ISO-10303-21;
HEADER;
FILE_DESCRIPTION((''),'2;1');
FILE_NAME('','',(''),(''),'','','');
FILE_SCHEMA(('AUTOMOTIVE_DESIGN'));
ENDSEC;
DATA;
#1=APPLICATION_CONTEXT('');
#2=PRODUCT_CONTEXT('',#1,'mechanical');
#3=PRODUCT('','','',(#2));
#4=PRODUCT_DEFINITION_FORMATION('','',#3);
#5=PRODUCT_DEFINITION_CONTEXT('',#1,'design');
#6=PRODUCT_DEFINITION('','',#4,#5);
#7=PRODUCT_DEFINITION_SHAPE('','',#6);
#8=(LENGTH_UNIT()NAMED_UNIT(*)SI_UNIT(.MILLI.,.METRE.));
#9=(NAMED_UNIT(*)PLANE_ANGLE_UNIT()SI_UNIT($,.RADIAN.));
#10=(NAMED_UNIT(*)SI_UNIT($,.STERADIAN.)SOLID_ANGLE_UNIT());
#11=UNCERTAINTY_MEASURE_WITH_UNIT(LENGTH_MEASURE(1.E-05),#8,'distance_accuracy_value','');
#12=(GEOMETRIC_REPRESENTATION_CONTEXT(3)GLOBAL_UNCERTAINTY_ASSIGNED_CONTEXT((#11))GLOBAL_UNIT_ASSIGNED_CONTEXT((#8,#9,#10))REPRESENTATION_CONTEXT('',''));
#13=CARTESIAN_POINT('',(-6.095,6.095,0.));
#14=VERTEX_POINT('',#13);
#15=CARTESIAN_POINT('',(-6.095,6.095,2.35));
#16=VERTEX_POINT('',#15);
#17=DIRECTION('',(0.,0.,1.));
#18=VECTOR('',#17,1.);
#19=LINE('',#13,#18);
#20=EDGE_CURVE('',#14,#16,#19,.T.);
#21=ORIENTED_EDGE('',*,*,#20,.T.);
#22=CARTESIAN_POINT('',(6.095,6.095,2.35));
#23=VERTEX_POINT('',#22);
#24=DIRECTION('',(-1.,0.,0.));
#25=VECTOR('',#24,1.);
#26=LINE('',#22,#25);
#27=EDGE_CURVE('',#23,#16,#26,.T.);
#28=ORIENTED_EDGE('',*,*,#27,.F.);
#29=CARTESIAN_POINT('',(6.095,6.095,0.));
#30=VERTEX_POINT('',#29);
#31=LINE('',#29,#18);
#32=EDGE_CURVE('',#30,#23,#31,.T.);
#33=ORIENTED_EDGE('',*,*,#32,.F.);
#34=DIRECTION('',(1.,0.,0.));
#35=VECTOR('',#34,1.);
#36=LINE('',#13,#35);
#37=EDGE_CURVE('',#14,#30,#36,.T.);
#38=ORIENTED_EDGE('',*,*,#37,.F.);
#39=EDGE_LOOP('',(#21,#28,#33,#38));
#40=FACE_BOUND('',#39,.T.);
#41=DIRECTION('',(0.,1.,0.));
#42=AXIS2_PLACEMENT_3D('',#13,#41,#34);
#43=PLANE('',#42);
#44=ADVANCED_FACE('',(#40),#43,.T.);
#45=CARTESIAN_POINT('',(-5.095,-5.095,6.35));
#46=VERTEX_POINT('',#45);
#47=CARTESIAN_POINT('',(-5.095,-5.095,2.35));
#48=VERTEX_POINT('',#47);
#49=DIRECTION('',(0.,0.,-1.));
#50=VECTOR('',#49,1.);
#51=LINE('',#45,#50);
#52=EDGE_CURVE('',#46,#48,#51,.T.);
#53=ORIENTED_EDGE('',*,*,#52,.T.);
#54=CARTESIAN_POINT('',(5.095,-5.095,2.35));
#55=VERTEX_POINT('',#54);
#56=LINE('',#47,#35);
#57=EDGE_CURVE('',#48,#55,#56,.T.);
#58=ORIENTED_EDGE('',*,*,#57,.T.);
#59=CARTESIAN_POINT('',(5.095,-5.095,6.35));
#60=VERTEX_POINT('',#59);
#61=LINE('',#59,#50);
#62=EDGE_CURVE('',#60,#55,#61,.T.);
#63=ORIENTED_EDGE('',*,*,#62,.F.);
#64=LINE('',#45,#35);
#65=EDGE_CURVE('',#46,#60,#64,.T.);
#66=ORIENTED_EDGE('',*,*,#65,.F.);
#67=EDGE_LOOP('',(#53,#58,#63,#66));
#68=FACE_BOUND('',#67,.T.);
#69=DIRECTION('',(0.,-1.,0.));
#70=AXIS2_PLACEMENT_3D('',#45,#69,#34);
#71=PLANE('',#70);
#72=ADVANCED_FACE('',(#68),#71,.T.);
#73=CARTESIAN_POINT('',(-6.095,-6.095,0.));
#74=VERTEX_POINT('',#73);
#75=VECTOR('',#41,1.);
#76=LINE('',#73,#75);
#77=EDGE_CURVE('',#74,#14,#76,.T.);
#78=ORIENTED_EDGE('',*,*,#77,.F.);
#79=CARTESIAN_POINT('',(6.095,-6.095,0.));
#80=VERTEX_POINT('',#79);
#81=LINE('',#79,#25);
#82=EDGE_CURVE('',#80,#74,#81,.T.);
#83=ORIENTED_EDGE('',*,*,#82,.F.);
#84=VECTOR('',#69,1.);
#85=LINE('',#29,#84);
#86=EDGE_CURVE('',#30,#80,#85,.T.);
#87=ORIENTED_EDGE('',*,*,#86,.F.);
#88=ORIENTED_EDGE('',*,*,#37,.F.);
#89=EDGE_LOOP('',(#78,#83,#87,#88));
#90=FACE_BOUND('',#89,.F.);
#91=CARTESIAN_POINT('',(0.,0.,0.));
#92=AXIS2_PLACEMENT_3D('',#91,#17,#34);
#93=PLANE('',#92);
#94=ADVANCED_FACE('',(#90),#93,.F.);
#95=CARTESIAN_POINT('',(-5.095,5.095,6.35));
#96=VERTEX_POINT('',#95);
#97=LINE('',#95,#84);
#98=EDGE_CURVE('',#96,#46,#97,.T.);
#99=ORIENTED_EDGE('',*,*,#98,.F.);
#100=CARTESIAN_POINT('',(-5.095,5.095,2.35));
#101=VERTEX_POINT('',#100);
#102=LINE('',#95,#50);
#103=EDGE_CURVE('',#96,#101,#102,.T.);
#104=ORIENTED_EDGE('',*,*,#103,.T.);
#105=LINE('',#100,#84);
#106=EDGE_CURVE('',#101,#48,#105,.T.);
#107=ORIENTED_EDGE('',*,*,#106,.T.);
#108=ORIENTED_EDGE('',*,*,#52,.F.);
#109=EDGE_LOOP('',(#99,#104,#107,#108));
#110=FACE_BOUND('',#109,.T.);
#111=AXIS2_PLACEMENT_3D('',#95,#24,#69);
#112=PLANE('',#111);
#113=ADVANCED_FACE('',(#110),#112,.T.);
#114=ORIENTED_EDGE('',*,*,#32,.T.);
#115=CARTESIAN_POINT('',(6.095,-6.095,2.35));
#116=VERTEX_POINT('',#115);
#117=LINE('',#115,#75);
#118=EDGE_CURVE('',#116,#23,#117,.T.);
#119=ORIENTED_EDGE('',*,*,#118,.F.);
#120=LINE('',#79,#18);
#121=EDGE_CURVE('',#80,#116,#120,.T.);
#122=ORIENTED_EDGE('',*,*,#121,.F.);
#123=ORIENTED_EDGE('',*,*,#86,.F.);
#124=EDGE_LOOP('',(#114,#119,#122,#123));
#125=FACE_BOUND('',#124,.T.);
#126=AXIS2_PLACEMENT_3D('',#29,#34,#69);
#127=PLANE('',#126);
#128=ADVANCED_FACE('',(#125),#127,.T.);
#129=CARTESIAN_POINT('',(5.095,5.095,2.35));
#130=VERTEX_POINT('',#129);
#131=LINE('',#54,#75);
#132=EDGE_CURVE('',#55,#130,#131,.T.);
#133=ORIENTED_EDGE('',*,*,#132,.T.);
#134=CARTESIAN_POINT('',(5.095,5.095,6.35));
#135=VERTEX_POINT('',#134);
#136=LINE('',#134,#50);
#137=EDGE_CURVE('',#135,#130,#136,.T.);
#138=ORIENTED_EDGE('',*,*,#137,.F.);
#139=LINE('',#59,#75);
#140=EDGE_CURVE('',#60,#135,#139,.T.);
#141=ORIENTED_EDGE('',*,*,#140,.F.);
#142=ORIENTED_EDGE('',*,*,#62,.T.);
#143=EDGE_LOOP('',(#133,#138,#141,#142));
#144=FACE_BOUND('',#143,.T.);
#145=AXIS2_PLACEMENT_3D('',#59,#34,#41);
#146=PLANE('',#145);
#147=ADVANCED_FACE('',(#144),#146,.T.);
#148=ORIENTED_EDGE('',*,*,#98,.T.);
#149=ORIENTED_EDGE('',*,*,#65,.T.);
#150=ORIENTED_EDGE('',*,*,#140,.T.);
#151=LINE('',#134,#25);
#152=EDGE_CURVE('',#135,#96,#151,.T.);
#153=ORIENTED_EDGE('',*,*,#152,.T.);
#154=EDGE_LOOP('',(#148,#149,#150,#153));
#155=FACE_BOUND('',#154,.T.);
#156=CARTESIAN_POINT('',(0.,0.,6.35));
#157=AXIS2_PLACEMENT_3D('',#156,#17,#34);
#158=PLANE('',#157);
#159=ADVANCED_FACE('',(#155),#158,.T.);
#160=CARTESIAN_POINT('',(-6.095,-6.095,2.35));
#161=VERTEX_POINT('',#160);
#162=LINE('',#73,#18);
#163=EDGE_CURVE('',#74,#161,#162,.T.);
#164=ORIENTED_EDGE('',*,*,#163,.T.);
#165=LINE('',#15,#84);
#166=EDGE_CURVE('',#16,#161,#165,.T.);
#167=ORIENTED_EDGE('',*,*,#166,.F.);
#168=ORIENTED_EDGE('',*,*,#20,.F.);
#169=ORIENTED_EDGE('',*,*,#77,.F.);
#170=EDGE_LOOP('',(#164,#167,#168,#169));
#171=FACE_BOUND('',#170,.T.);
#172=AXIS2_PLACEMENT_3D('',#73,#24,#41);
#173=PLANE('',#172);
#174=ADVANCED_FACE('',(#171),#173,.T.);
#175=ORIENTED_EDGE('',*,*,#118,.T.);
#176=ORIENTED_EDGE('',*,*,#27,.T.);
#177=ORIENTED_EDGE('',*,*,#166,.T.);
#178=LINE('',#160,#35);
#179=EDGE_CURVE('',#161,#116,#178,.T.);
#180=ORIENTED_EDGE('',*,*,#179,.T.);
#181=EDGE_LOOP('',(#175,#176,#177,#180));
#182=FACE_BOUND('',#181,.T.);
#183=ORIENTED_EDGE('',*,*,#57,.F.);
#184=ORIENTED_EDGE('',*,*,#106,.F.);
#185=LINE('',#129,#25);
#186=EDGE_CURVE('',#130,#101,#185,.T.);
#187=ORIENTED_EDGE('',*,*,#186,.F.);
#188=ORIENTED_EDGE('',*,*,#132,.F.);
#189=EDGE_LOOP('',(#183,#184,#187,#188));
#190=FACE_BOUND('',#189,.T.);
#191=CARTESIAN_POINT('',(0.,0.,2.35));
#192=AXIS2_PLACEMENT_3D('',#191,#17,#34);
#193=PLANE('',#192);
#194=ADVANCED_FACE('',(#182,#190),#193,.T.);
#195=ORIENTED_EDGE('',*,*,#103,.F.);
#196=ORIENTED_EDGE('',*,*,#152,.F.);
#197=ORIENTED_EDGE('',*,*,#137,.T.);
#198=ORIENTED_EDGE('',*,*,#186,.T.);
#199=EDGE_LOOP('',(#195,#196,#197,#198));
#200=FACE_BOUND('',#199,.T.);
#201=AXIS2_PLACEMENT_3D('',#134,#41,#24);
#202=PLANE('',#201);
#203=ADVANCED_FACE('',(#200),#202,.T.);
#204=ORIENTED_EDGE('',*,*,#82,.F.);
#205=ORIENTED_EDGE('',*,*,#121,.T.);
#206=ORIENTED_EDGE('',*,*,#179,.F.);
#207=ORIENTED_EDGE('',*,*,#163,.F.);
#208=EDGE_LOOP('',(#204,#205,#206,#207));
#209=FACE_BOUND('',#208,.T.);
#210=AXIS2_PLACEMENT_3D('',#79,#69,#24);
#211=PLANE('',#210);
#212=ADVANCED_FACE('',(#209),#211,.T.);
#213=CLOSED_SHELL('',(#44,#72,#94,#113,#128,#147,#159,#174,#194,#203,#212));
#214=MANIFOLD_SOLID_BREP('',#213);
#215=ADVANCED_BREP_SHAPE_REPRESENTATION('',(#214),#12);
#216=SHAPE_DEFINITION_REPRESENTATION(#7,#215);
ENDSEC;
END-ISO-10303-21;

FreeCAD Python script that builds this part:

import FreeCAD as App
import Part
import Sketcher

V = App.Vector

doc = App.newDocument("Part")
body = doc.addObject("PartDesign::Body", "Body")

# Sketch on XY plane
sketch1 = body.newObject("Sketcher::SketchObject", "Sketch")
sketch1.AttachmentSupport = (doc.getObject("XY_Plane"), [""])
sketch1.MapMode = "FlatFace"
sketch1.addGeometry([
    Part.LineSegment(V(6, 6, 0), V(-6, 6, 0)),
    Part.LineSegment(V(-6, 6, 0), V(-6, -6, 0)),
    Part.LineSegment(V(-6, -6, 0), V(6, -6, 0)),
    Part.LineSegment(V(6, -6, 0), V(6, 6, 0)),
], False)
sketch1.addConstraint([
    Sketcher.Constraint("Coincident", 0, 2, 1, 1),
    Sketcher.Constraint("Coincident", 1, 2, 2, 1),
    Sketcher.Constraint("Coincident", 2, 2, 3, 1),
    Sketcher.Constraint("Coincident", 3, 2, 0, 1),
    Sketcher.Constraint("Horizontal", 0),
    Sketcher.Constraint("Vertical", 1),
    Sketcher.Constraint("Horizontal", 2),
    Sketcher.Constraint("Vertical", 3),
    Sketcher.Constraint("Symmetric", 0, 2, 2, 2, -1, 1),
    Sketcher.Constraint("Equal", 2, 1),
    Sketcher.Constraint("DistanceX", 0, 2, 0, 1, 12.19),
])
pad1 = body.newObject("PartDesign::Pad", "Pad")
pad1.Profile = sketch1
pad1.Length = 6.35

# Sketch on XY plane
sketch2 = body.newObject("Sketcher::SketchObject", "Sketch001")
sketch2.AttachmentSupport = (doc.getObject("XY_Plane"), [""])
sketch2.MapMode = "FlatFace"
sketch2.AttachmentOffset = App.Placement(V(0, 0, 6.35), App.Rotation())
sketch2.addGeometry([
    Part.LineSegment(V(6, -6, 0), V(6, 6, 0)),  # 0
    Part.LineSegment(V(6, 6, 0), V(-6, 6, 0)),  # 1
    Part.LineSegment(V(-6, 6, 0), V(-6, -6, 0)),  # 2
    Part.LineSegment(V(-6, -6, 0), V(6, -6, 0)),  # 3
    Part.LineSegment(V(5, -5, 0), V(-5, -5, 0)),  # 4
    Part.LineSegment(V(-5, -5, 0), V(-5, 5, 0)),  # 5
    Part.LineSegment(V(-5, 5, 0), V(5, 5, 0)),  # 6
    Part.LineSegment(V(5, 5, 0), V(5, -5, 0)),  # 7
], False)
sketch2.addConstraint([
    Sketcher.Constraint("Coincident", 0, 2, 1, 1),
    Sketcher.Constraint("Coincident", 1, 2, 2, 1),
    Sketcher.Constraint("Coincident", 2, 2, 3, 1),
    Sketcher.Constraint("Coincident", 3, 2, 0, 1),
    Sketcher.Constraint("Coincident", 4, 2, 5, 1),
    Sketcher.Constraint("Coincident", 5, 2, 6, 1),
    Sketcher.Constraint("Coincident", 6, 2, 7, 1),
    Sketcher.Constraint("Coincident", 7, 2, 4, 1),
    Sketcher.Constraint("Vertical", 0),
    Sketcher.Constraint("Horizontal", 1),
    Sketcher.Constraint("Vertical", 2),
    Sketcher.Constraint("Horizontal", 3),
    Sketcher.Constraint("Horizontal", 4),
    Sketcher.Constraint("Vertical", 5),
    Sketcher.Constraint("Horizontal", 6),
    Sketcher.Constraint("Vertical", 7),
    Sketcher.Constraint("Symmetric", 0, 2, 2, 2, -1, 1),
    Sketcher.Constraint("Symmetric", 4, 2, 6, 2, -1, 1),
    Sketcher.Constraint("Equal", 3, 0),
    Sketcher.Constraint("Equal", 6, 5),
    Sketcher.Constraint("DistanceX", 2, 2, 4, 2, 1.0),
    Sketcher.Constraint("DistanceX", 1, 2, 1, 1, 12.19),
])
pocket1 = body.newObject("PartDesign::Pocket", "Pocket")
pocket1.Profile = sketch2
pocket1.Length = 4

doc.recompute()
